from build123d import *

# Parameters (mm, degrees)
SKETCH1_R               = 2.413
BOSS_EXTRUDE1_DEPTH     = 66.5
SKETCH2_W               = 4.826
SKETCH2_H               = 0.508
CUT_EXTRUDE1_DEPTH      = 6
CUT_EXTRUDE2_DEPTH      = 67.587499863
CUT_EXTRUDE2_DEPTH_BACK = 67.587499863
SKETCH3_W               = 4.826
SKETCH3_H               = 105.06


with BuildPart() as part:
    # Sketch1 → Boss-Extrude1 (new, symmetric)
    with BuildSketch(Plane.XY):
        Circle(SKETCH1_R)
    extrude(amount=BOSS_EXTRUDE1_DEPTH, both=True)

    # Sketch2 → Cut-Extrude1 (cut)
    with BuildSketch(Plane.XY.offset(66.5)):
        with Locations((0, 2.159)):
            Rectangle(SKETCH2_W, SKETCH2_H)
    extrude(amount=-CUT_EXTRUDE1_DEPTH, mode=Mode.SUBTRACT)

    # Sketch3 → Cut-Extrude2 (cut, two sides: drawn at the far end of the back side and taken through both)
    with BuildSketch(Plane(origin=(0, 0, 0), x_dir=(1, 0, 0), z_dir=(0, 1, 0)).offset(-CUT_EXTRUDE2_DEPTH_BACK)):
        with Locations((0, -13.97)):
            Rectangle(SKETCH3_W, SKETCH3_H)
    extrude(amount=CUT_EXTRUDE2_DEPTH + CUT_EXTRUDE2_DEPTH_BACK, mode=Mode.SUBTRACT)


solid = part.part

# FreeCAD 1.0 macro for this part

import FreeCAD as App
import Part
import Sketcher

V = App.Vector
Q = App.Units.Quantity


def add_polygon(sketch, points):
    """Adds a closed chain of lines whose ends are joined by coincident constraints."""
    first, n = sketch.GeometryCount, len(points)
    for a, b in zip(points, points[1:] + points[:1]):
        sketch.addGeometry(Part.LineSegment(App.Vector(*a, 0), App.Vector(*b, 0)), False)
    for i in range(n):
        sketch.addConstraint(Sketcher.Constraint("Coincident", first + i, 2, first + (i + 1) % n, 1))

doc = App.newDocument("Part")
body = doc.addObject("PartDesign::Body", "Body")

# Sketch on XY plane
sketch1 = body.newObject("Sketcher::SketchObject", "Sketch")
sketch1.AttachmentSupport = (doc.getObject("XY_Plane"), [""])
sketch1.MapMode = "FlatFace"
sketch1.addGeometry(Part.Circle(V(0, 0, 0), V(0, 0, 1), 2.4), False)
sketch1.addConstraint([
    Sketcher.Constraint("Coincident", 0, 3, -1, 1),
    Sketcher.Constraint("Diameter", 0, Q("4.826 mm")),
])
pad1 = body.newObject("PartDesign::Pad", "Pad")
pad1.Profile = sketch1
pad1.Length = 133
pad1.Midplane = True

# Sketch on XY plane
sketch2 = body.newObject("Sketcher::SketchObject", "Sketch001")
sketch2.AttachmentSupport = (doc.getObject("XY_Plane"), [""])
sketch2.MapMode = "FlatFace"
sketch2.AttachmentOffset = App.Placement(V(0, 0, 66.5), App.Rotation())
add_polygon(sketch2, [(-2.4, 2.4), (-2.4, 1.9), (2.4, 1.9), (2.4, 2.4)])  # lines 0-3
sketch2.addConstraint([
    Sketcher.Constraint("Vertical", 0),
    Sketcher.Constraint("Horizontal", 1),
    Sketcher.Constraint("Vertical", 2),
    Sketcher.Constraint("Horizontal", 3),
    Sketcher.Constraint("DistanceX", 1, 1, 1, 2, Q("4.826 mm")),
    Sketcher.Constraint("DistanceY", 0, 2, 0, 1, Q("0.508 mm")),
    Sketcher.Constraint("DistanceX", 0, 2, -1, 1, Q("2.413 mm")),
    Sketcher.Constraint("DistanceY", -1, 1, 0, 2, Q("1.905 mm")),
])
pocket1 = body.newObject("PartDesign::Pocket", "Pocket")
pocket1.Profile = sketch2
pocket1.Length = 6

# Sketch on XZ plane
sketch3 = body.newObject("Sketcher::SketchObject", "Sketch002")
sketch3.AttachmentSupport = (doc.getObject("XZ_Plane"), [""])
sketch3.MapMode = "FlatFace"
add_polygon(sketch3, [(-2.4, -38.6), (-2.4, 66.5), (2.4, 66.5), (2.4, -38.6)])  # lines 0-3
sketch3.addConstraint([
    Sketcher.Constraint("Vertical", 0),
    Sketcher.Constraint("Horizontal", 1),
    Sketcher.Constraint("Vertical", 2),
    Sketcher.Constraint("Horizontal", 3),
    Sketcher.Constraint("DistanceY", 0, 1, 0, 2, Q("105.06 mm")),
    Sketcher.Constraint("DistanceY", -1, 1, 0, 2, Q("66.5 mm")),
    Sketcher.Constraint("DistanceX", 1, 1, 1, 2, Q("4.826 mm")),
    Sketcher.Constraint("DistanceX", 0, 2, -1, 1, Q("2.413 mm")),
])
pocket2 = body.newObject("PartDesign::Pocket", "Pocket001")
pocket2.Profile = sketch3
pocket2.Type = "ThroughAll"
pocket2.Midplane = True

doc.recompute()
